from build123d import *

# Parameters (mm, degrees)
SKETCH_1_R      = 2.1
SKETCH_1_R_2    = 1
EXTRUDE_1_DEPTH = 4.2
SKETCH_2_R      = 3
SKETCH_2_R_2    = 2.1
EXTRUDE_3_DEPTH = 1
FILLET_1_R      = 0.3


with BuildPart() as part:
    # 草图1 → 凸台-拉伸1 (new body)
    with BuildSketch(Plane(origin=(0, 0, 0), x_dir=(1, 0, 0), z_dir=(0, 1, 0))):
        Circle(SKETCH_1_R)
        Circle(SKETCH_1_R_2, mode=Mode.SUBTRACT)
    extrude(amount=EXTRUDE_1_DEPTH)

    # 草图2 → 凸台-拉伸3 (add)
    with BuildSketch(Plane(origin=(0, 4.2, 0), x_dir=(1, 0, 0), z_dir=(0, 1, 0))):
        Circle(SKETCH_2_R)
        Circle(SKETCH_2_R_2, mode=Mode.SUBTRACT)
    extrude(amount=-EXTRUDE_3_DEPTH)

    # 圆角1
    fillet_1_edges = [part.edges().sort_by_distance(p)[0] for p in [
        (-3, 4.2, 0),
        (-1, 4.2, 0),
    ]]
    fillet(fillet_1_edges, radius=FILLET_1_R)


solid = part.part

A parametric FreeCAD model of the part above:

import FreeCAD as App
import Part
import Sketcher
from FreeCAD import Vector
Q = App.Units.Quantity


def edges_at(feature, points):
    """Names of the edges that pass closest to the given points."""
    edges = feature.Shape.Edges
    near = lambda p: min(range(len(edges)), key=lambda i: edges[i].distToShape(Part.Vertex(*p))[0])
    return sorted({f"Edge{near(p) + 1}" for p in points})

doc = App.newDocument("Part")
body = doc.addObject("PartDesign::Body", "Body")

# Sketch on XZ plane
sketch1 = doc.addObject("Sketcher::SketchObject", "Sketch")
body.addObject(sketch1)
sketch1.AttachmentSupport = (doc.XZ_Plane, [""])
sketch1.MapMode = "FlatFace"
sketch1.addGeometry([
    Part.Circle(Vector(0, 0, 0), Vector(0, 0, 1), 2.1),
    Part.Circle(Vector(0, 0, 0), Vector(0, 0, 1), 1),
], False)
sketch1.addConstraint([
    Sketcher.Constraint("Coincident", 0, 3, -1, 1),
    Sketcher.Constraint("Coincident", 1, 3, -1, 1),
    Sketcher.Constraint("Diameter", 1, Q("2 mm")),
    Sketcher.Constraint("Diameter", 0, Q("4.2 mm")),
])
pad1 = doc.addObject("PartDesign::Pad", "Pad")
body.addObject(pad1)
pad1.Profile = sketch1
pad1.Length = 4.2
pad1.Reversed = True

# Sketch on XZ plane
sketch2 = doc.addObject("Sketcher::SketchObject", "Sketch001")
body.addObject(sketch2)
sketch2.AttachmentSupport = (doc.XZ_Plane, [""])
sketch2.MapMode = "FlatFace"
sketch2.AttachmentOffset = App.Placement(Vector(0, 0, -4.2), App.Rotation())
sketch2.addGeometry([
    Part.Circle(Vector(0, 0, 0), Vector(0, 0, 1), 3),
    Part.Circle(Vector(0, 0, 0), Vector(0, 0, 1), 2.1),
], False)
sketch2.addConstraint([
    Sketcher.Constraint("Coincident", 0, 3, -1, 1),
    Sketcher.Constraint("Coincident", 1, 3, -1, 1),
    Sketcher.Constraint("Diameter", 0, Q("6 mm")),
    Sketcher.Constraint("Diameter", 1, Q("4.2 mm")),
])
pad2 = doc.addObject("PartDesign::Pad", "Pad001")
body.addObject(pad2)
pad2.Profile = sketch2
pad2.Length = 1
doc.recompute()

fillet = doc.addObject("PartDesign::Fillet", "Fillet")
body.addObject(fillet)
fillet.Base = (pad2, edges_at(pad2, [(-3, 4.2, 0), (-1, 4.2, 0)]))
fillet.Radius = 0.3

doc.recompute()
